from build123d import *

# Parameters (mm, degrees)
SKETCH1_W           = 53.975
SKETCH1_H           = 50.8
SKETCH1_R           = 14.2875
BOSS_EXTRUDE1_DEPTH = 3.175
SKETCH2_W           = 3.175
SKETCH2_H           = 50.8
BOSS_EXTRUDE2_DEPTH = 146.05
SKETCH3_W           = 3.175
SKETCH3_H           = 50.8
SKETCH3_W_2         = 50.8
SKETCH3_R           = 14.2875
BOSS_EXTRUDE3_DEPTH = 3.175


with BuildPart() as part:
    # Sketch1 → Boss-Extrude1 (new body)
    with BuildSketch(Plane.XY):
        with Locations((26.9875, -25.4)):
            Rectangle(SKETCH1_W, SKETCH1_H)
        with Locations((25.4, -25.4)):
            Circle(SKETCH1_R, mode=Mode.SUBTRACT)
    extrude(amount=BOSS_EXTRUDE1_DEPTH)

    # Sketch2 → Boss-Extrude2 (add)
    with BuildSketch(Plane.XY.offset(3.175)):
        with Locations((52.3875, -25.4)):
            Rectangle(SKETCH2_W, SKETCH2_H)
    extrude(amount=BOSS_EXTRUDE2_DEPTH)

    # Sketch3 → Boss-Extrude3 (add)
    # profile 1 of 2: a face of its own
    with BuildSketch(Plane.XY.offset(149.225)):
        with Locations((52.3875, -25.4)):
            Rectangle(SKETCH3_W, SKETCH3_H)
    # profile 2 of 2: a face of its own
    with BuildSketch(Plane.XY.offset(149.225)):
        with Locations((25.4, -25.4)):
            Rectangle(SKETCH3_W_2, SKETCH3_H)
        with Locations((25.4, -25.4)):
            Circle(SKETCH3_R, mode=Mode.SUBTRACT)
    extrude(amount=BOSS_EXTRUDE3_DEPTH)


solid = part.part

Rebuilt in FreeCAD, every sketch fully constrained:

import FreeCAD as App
import Part
import Sketcher
from FreeCAD import Vector
Q = App.Units.Quantity


def add_polygon(sketch, points):
    """Adds a closed chain of lines whose ends are joined by coincident constraints."""
    first, n = sketch.GeometryCount, len(points)
    for a, b in zip(points, points[1:] + points[:1]):
        sketch.addGeometry(Part.LineSegment(App.Vector(*a, 0), App.Vector(*b, 0)), False)
    for i in range(n):
        sketch.addConstraint(Sketcher.Constraint("Coincident", first + i, 2, first + (i + 1) % n, 1))

doc = App.newDocument("Part")
body = doc.addObject("PartDesign::Body", "Body")

# Sketch on XY plane
sketch1 = body.newObject("Sketcher::SketchObject", "Sketch")
sketch1.AttachmentSupport = (doc.getObject("XY_Plane"), [""])
sketch1.MapMode = "FlatFace"
add_polygon(sketch1, [(0, 0), (0, -51), (54, -51), (54, 0)])  # lines 0-3
sketch1.addGeometry(Part.Circle(Vector(25, -25, 0), Vector(0, 0, 1), 14), False)  # 4
sketch1.addConstraint([
    Sketcher.Constraint("Vertical", 0),
    Sketcher.Constraint("Horizontal", 1),
    Sketcher.Constraint("Vertical", 2),
    Sketcher.Constraint("Horizontal", 3),
    Sketcher.Constraint("Coincident", 3, 2, -1, 1),
    Sketcher.Constraint("DistanceY", 0, 2, 0, 1, Q("2 in")),
    Sketcher.Constraint("Diameter", 4, Q("1.125 in")),
    Sketcher.Constraint("DistanceX", -1, 1, 4, 3, Q("1 in")),
    Sketcher.Constraint("DistanceY", 4, 3, -1, 1, Q("1 in")),
    Sketcher.Constraint("DistanceX", 1, 1, 1, 2, Q("2.125 in")),
])
pad1 = body.newObject("PartDesign::Pad", "Pad")
pad1.Profile = sketch1
pad1.Length = Q("0.125 in")

# Sketch on XY plane
sketch2 = body.newObject("Sketcher::SketchObject", "Sketch001")
sketch2.AttachmentSupport = (doc.getObject("XY_Plane"), [""])
sketch2.MapMode = "FlatFace"
sketch2.AttachmentOffset = App.Placement(Vector(0, 0, 0.125 * 25.4), App.Rotation())
add_polygon(sketch2, [(50.8, 0), (50.8, -50.8), (54, -50.8), (54, 0)])  # lines 0-3
sketch2.addConstraint([
    Sketcher.Constraint("Vertical", 0),
    Sketcher.Constraint("Horizontal", 1),
    Sketcher.Constraint("Vertical", 2),
    Sketcher.Constraint("Horizontal", 3),
    Sketcher.Constraint("PointOnObject", 2, 2, -1),
    Sketcher.Constraint("DistanceY", 0, 2, 0, 1, Q("2 in")),
    Sketcher.Constraint("DistanceX", -1, 1, 0, 2, Q("2 in")),
    Sketcher.Constraint("DistanceX", 1, 1, 1, 2, Q("0.125 in")),
])
pad2 = body.newObject("PartDesign::Pad", "Pad001")
pad2.Profile = sketch2
pad2.Length = Q("5.75 in")

# Sketch on XY plane
sketch3 = body.newObject("Sketcher::SketchObject", "Sketch002")
sketch3.AttachmentSupport = (doc.getObject("XY_Plane"), [""])
sketch3.MapMode = "FlatFace"
sketch3.AttachmentOffset = App.Placement(Vector(0, 0, 5.875 * 25.4), App.Rotation())
add_polygon(sketch3, [(54, -51), (54, 0), (0, 0), (0, -51)])  # lines 0-3
sketch3.addGeometry(Part.Circle(Vector(25, -25, 0), Vector(0, 0, 1), 14), False)  # 4
sketch3.addConstraint([
    Sketcher.Constraint("Vertical", 0),
    Sketcher.Constraint("Horizontal", 1),
    Sketcher.Constraint("Vertical", 2),
    Sketcher.Constraint("Horizontal", 3),
    Sketcher.Constraint("Coincident", 1, 2, -1, 1),
    Sketcher.Constraint("DistanceY", 0, 1, 0, 2, Q("2 in")),
    Sketcher.Constraint("Diameter", 4, Q("1.125 in")),
    Sketcher.Constraint("DistanceX", -1, 1, 4, 3, Q("1 in")),
    Sketcher.Constraint("DistanceY", 4, 3, -1, 1, Q("1 in")),
    Sketcher.Constraint("DistanceX", 1, 2, 1, 1, Q("2.125 in")),
])
pad3 = body.newObject("PartDesign::Pad", "Pad002")
pad3.Profile = sketch3
pad3.Length = Q("0.125 in")

doc.recompute()
